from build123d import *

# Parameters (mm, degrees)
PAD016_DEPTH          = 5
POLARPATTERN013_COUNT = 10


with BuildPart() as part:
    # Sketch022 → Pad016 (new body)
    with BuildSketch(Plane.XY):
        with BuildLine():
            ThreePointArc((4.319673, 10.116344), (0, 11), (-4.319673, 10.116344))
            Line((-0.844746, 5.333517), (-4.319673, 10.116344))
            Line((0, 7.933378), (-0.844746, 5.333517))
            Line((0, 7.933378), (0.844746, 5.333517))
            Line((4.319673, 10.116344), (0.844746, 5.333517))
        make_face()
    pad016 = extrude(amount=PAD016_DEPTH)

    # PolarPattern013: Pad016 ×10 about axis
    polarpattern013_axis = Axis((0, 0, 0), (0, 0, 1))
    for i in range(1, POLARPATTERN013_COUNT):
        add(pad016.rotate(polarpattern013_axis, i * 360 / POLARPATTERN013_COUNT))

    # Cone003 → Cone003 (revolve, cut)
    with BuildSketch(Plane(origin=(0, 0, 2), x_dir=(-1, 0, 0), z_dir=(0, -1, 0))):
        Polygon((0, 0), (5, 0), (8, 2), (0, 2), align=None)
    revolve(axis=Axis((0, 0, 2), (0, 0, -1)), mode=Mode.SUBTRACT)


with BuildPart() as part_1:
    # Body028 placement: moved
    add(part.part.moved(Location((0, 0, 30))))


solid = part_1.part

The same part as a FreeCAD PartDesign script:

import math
import FreeCAD as App
import Part
import Sketcher

V = App.Vector
Q = App.Units.Quantity


def add_polygon(sketch, points):
    """Adds a closed chain of lines whose ends are joined by coincident constraints."""
    first, n = sketch.GeometryCount, len(points)
    for a, b in zip(points, points[1:] + points[:1]):
        sketch.addGeometry(Part.LineSegment(App.Vector(*a, 0), App.Vector(*b, 0)), False)
    for i in range(n):
        sketch.addConstraint(Sketcher.Constraint("Coincident", first + i, 2, first + (i + 1) % n, 1))

doc = App.newDocument("Part")
body = doc.addObject("PartDesign::Body", "Body")

# Sketch on XY plane
sketch1 = body.newObject("Sketcher::SketchObject", "Sketch")
sketch1.AttachmentSupport = (doc.getObject("XY_Plane"), [""])
sketch1.MapMode = "FlatFace"
sketch1.addGeometry(Part.ArcOfCircle(Part.Circle(V(0, 0.000005, 0), V(0, 0, 1), 10.999995), math.radians(66.877535), math.radians(113.122465)), False)
sketch1.addGeometry(Part.LineSegment(V(-4.319673, 10.116344, 0), V(-0.844746, 5.333517, 0)), False)
sketch1.addGeometry(Part.LineSegment(V(-0.844746, 5.333517, 0), V(0, 7.933378, 0)), False)
sketch1.addGeometry(Part.LineSegment(V(0, 7.933378, 0), V(0.844746, 5.333517, 0)), False)
sketch1.addGeometry(Part.LineSegment(V(0.844746, 5.333517, 0), V(4.319673, 10.116344, 0)), False)
sketch1.addConstraint(Sketcher.Constraint("Coincident", 0, 2, 1, 1))
sketch1.addConstraint(Sketcher.Constraint("Coincident", 1, 2, 2, 1))
sketch1.addConstraint(Sketcher.Constraint("Coincident", 2, 2, 3, 1))
sketch1.addConstraint(Sketcher.Constraint("Coincident", 3, 2, 4, 1))
sketch1.addConstraint(Sketcher.Constraint("Coincident", 4, 2, 0, 1))
sketch1.addConstraint(Sketcher.Constraint("Coincident", 0, 3, -1, 1))
sketch1.addConstraint(Sketcher.Constraint("Symmetric", 1, 2, 3, 2, -2))
sketch1.addConstraint(Sketcher.Constraint("PointOnObject", 2, 2, -2))
sketch1.addConstraint(Sketcher.Constraint("Horizontal", 0, 2, 4, 2))
sketch1.addConstraint(Sketcher.Constraint("Angle", 1, Q("-54.000002 deg")))
sketch1.addConstraint(Sketcher.Constraint("Angle", 2, Q("72.000001 deg")))
sketch1.addConstraint(Sketcher.Constraint("Radius", 0, Q("10.999995 mm")))
sketch1.addConstraint(Sketcher.Constraint("Distance", 1, Q("5.911899 mm")))
sketch1.addConstraint(Sketcher.Constraint("DistanceY", -1, 1, 2, 2, Q("7.933378 mm")))
pad1 = body.newObject("PartDesign::Pad", "Pad")
pad1.Profile = sketch1
pad1.Length = 5
doc.recompute()

polarpattern = body.newObject("PartDesign::PolarPattern", "PolarPattern")
polarpattern.Originals = [pad1]
polarpattern.Axis = (doc.getObject("Z_Axis"), [""])
polarpattern.Angle = 360
polarpattern.Occurrences = 10
body.Tip = polarpattern

# Sketch on XZ plane
sketch2 = body.newObject("Sketcher::SketchObject", "Sketch001")
sketch2.AttachmentSupport = (doc.getObject("XZ_Plane"), [""])
sketch2.MapMode = "FlatFace"
add_polygon(sketch2, [(0, 2), (-5, 2), (-8, 0), (0, 0)])  # lines 0-3
sketch2.addConstraint(Sketcher.Constraint("Horizontal", 0))
sketch2.addConstraint(Sketcher.Constraint("Horizontal", 2))
sketch2.addConstraint(Sketcher.Constraint("Vertical", 3))
sketch2.addConstraint(Sketcher.Constraint("Coincident", 2, 2, -1, 1))
sketch2.addConstraint(Sketcher.Constraint("DistanceX", 0, 2, 0, 1, Q("5 mm")))
sketch2.addConstraint(Sketcher.Constraint("DistanceX", 2, 1, 2, 2, Q("8 mm")))
sketch2.addConstraint(Sketcher.Constraint("DistanceY", 3, 1, 3, 2, Q("2 mm")))
groove = body.newObject("PartDesign::Groove", "Groove")
groove.Profile = sketch2
groove.ReferenceAxis = (sketch2, ["V_Axis"])
groove.Angle = 360
body2 = doc.addObject("PartDesign::Body", "Body001")
doc.recompute()

body.Placement = App.Placement(V(0, 0, 30), App.Rotation(V(0, 0, 1), 0))
boolean = body2.newObject("PartDesign::Boolean", "Boolean")
boolean.Type = "Fuse"
boolean.addObjects([body])

doc.recompute()
